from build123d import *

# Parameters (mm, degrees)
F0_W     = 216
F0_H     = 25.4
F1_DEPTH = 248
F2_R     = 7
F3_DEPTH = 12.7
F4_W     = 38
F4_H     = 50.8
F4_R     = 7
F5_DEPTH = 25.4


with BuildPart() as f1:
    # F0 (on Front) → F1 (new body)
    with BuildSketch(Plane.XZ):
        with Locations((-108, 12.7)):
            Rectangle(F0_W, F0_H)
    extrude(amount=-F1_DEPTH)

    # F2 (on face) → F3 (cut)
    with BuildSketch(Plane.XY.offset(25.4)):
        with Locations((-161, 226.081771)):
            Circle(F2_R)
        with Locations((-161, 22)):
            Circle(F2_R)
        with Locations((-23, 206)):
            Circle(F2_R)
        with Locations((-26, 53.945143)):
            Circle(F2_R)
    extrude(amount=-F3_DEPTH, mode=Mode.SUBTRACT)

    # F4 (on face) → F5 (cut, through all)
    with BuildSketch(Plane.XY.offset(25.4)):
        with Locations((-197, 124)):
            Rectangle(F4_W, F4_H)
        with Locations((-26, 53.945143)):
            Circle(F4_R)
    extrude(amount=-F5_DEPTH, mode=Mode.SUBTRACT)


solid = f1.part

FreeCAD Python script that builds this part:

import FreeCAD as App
import Part
import Sketcher


def add_polygon(sketch, points):
    """Adds a closed chain of lines whose ends are joined by coincident constraints."""
    first, n = sketch.GeometryCount, len(points)
    for a, b in zip(points, points[1:] + points[:1]):
        sketch.addGeometry(Part.LineSegment(App.Vector(*a, 0), App.Vector(*b, 0)), False)
    for i in range(n):
        sketch.addConstraint(Sketcher.Constraint("Coincident", first + i, 2, first + (i + 1) % n, 1))

doc = App.newDocument("Part")
body = doc.addObject("PartDesign::Body", "Body")

sketch1 = doc.addObject("Sketcher::SketchObject", "Sketch")
body.addObject(sketch1)
sketch1.AttachmentSupport = (doc.XZ_Plane, [""])
sketch1.MapMode = "FlatFace"
add_polygon(sketch1, [(-216, 25), (-216, 0), (0, 0), (0, 25)])
sketch1.addConstraint([
    Sketcher.Constraint("Vertical", 0),
    Sketcher.Constraint("Horizontal", 1),
    Sketcher.Constraint("Vertical", 2),
    Sketcher.Constraint("Horizontal", 3),
    Sketcher.Constraint("Coincident", 1, 2, -1, 1),
    Sketcher.Constraint("DistanceX", 1, 1, 1, 2, 216.0),
    Sketcher.Constraint("DistanceY", 0, 2, 0, 1, 25.4),
])
pad1 = doc.addObject("PartDesign::Pad", "Pad")
body.addObject(pad1)
pad1.Profile = sketch1
pad1.Length = 248
pad1.Reversed = True

sketch2 = doc.addObject("Sketcher::SketchObject", "Sketch001")
body.addObject(sketch2)
sketch2.AttachmentSupport = (doc.XY_Plane, [""])
sketch2.MapMode = "FlatFace"
sketch2.AttachmentOffset = App.Placement(App.Vector(0, 0, 25.4), App.Rotation())
sketch2.addGeometry([
    Part.Circle(App.Vector(-161, 226, 0), App.Vector(0, 0, 1), 7),
    Part.Circle(App.Vector(-161, 22, 0), App.Vector(0, 0, 1), 7),
    Part.Circle(App.Vector(-23, 206, 0), App.Vector(0, 0, 1), 7),
    Part.Circle(App.Vector(-26, 54, 0), App.Vector(0, 0, 1), 7),
], False)
sketch2.addConstraint([
    Sketcher.Constraint("Equal", 0, 1),
    Sketcher.Constraint("Equal", 1, 2),
    Sketcher.Constraint("Equal", 2, 3),
    Sketcher.Constraint("Vertical", 0, 3, 1, 3),
    Sketcher.Constraint("Diameter", 0, 14.0),
    Sketcher.Constraint("DistanceX", 0, 3, -1, 1, 161.0),
    Sketcher.Constraint("DistanceY", -1, 1, 1, 3, 22.0),
    Sketcher.Constraint("DistanceX", 2, 3, -1, 1, 23.0),
    Sketcher.Constraint("DistanceY", -1, 1, 2, 3, 206.0),
    Sketcher.Constraint("DistanceX", 3, 3, -1, 1, 26.0),
    Sketcher.Constraint("DistanceY", -1, 1, 0, 3, 226.081771),
    Sketcher.Constraint("DistanceY", 3, 3, 0, 3, 172.136628),
])
pocket1 = doc.addObject("PartDesign::Pocket", "Pocket")
body.addObject(pocket1)
pocket1.Profile = sketch2
pocket1.Length = 12.7

sketch3 = doc.addObject("Sketcher::SketchObject", "Sketch002")
body.addObject(sketch3)
sketch3.AttachmentSupport = (doc.XY_Plane, [""])
sketch3.MapMode = "FlatFace"
sketch3.AttachmentOffset = App.Placement(App.Vector(0, 0, 25.4), App.Rotation())
add_polygon(sketch3, [(-216, 149), (-216, 99), (-178, 99), (-178, 149)])
sketch3.addGeometry(Part.Circle(App.Vector(-26, 54, 0), App.Vector(0, 0, 1), 7), False)
sketch3.addConstraint([
    Sketcher.Constraint("Vertical", 0),
    Sketcher.Constraint("Horizontal", 1),
    Sketcher.Constraint("Vertical", 2),
    Sketcher.Constraint("Horizontal", 3),
    Sketcher.Constraint("Diameter", 4, 14.0),
    Sketcher.Constraint("DistanceX", 1, 1, 1, 2, 38.0),
    Sketcher.Constraint("DistanceY", 0, 2, 0, 1, 50.8),
    Sketcher.Constraint("DistanceX", 4, 3, -1, 1, 26.0),
    Sketcher.Constraint("DistanceX", 0, 2, -1, 1, 216.0),
    Sketcher.Constraint("DistanceY", -1, 1, 0, 2, 98.6),
    Sketcher.Constraint("DistanceY", -1, 1, 4, 3, 53.945143),
])
pocket2 = doc.addObject("PartDesign::Pocket", "Pocket001")
body.addObject(pocket2)
pocket2.Profile = sketch3
pocket2.Type = "ThroughAll"

doc.recompute()
